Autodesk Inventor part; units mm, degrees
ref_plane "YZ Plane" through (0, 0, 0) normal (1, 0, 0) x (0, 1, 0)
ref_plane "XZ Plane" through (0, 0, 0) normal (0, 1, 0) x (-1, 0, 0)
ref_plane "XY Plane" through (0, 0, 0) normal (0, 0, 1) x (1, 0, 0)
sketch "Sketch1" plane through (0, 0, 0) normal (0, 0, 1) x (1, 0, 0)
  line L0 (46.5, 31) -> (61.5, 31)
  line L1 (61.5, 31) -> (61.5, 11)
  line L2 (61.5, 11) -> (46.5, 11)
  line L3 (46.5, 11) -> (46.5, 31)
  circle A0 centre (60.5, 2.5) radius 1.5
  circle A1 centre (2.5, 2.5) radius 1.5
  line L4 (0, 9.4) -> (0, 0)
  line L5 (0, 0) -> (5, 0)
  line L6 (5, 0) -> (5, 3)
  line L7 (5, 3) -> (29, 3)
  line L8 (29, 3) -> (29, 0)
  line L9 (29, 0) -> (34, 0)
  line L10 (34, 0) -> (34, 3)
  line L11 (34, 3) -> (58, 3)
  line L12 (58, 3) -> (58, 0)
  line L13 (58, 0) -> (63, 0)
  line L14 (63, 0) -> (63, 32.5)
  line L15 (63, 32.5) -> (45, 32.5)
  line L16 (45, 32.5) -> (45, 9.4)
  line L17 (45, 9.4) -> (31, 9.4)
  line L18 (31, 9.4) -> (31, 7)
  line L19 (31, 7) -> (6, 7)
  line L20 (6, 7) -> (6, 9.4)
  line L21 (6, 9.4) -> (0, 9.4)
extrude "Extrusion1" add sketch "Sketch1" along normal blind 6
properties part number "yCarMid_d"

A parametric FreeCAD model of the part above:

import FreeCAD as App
import Part
import Sketcher

V = App.Vector


def add_polygon(sketch, points):
    """Adds a closed chain of lines whose ends are joined by coincident constraints."""
    first, n = sketch.GeometryCount, len(points)
    for a, b in zip(points, points[1:] + points[:1]):
        sketch.addGeometry(Part.LineSegment(App.Vector(*a, 0), App.Vector(*b, 0)), False)
    for i in range(n):
        sketch.addConstraint(Sketcher.Constraint("Coincident", first + i, 2, first + (i + 1) % n, 1))

doc = App.newDocument("Part")
body = doc.addObject("PartDesign::Body", "Body")

sketch1 = body.newObject("Sketcher::SketchObject", "Sketch")
sketch1.AttachmentSupport = (doc.getObject("XY_Plane"), [""])
sketch1.MapMode = "FlatFace"
add_polygon(sketch1, [(6, 9.4), (0, 9.4), (0, 0), (5, 0), (5, 3), (29, 3), (29, 0), (34, 0), (34, 3), (58, 3), (58, 0), (63, 0), (63, 32.5), (45, 32.5), (45, 9.4), (31, 9.4), (31, 7), (6, 7)])
sketch1.addGeometry(Part.Circle(V(2.5, 2.5, 0), V(0, 0, 1), 1.5), False)
sketch1.addGeometry(Part.Circle(V(60.5, 2.5, 0), V(0, 0, 1), 1.5), False)
add_polygon(sketch1, [(46.5, 11), (46.5, 31), (61.5, 31), (61.5, 11)])
sketch1.addConstraint([
    Sketcher.Constraint("Horizontal", 0),
    Sketcher.Constraint("Vertical", 1),
    Sketcher.Constraint("Horizontal", 2),
    Sketcher.Constraint("Vertical", 3),
    Sketcher.Constraint("Horizontal", 4),
    Sketcher.Constraint("Vertical", 5),
    Sketcher.Constraint("Horizontal", 6),
    Sketcher.Constraint("Vertical", 7),
    Sketcher.Constraint("Horizontal", 8),
    Sketcher.Constraint("Vertical", 9),
    Sketcher.Constraint("Horizontal", 10),
    Sketcher.Constraint("Vertical", 11),
    Sketcher.Constraint("Horizontal", 12),
    Sketcher.Constraint("Vertical", 13),
    Sketcher.Constraint("Horizontal", 14),
    Sketcher.Constraint("Vertical", 15),
    Sketcher.Constraint("Horizontal", 16),
    Sketcher.Constraint("Vertical", 17),
    Sketcher.Constraint("Vertical", 20),
    Sketcher.Constraint("Horizontal", 21),
    Sketcher.Constraint("Vertical", 22),
    Sketcher.Constraint("Horizontal", 23),
    Sketcher.Constraint("Coincident", 1, 2, -1, 1),
    Sketcher.Constraint("Equal", 18, 19),
    Sketcher.Constraint("PointOnObject", 5, 2, -1),
    Sketcher.Constraint("PointOnObject", 9, 2, -1),
    Sketcher.Constraint("Horizontal", 18, 3, 19, 3),
    Sketcher.Constraint("Horizontal", 4, 2, 7, 2),
    Sketcher.Constraint("Horizontal", 0, 2, 13, 2),
    Sketcher.Constraint("Equal", 2, 6),
    Sketcher.Constraint("Equal", 4, 8),
    Sketcher.Constraint("Equal", 6, 10),
    Sketcher.Constraint("Diameter", 18, 3.0),
    Sketcher.Constraint("DistanceX", 0, 2, 0, 1, 6.0),
    Sketcher.Constraint("DistanceX", 2, 1, 2, 2, 5.0),
    Sketcher.Constraint("DistanceX", 4, 1, 4, 2, 24.0),
    Sketcher.Constraint("DistanceX", 12, 2, 12, 1, 18.0),
    Sketcher.Constraint("DistanceX", 14, 2, 14, 1, 14.0),
    Sketcher.Constraint("DistanceX", 21, 1, 21, 2, 15.0),
    Sketcher.Constraint("DistanceY", 3, 1, 3, 2, 3.0),
    Sketcher.Constraint("DistanceY", 20, 1, 20, 2, 20.0),
    Sketcher.Constraint("DistanceY", 1, 2, 1, 1, 9.4),
    Sketcher.Constraint("DistanceY", 11, 1, 11, 2, 32.5),
    Sketcher.Constraint("DistanceY", 15, 2, 15, 1, 2.4),
    Sketcher.Constraint("DistanceY", -1, 1, 20, 2, 31.0),
    Sketcher.Constraint("DistanceX", 18, 3, 19, 3, 58.0),
    Sketcher.Constraint("DistanceY", 19, 3, 11, 2, 30.0),
    Sketcher.Constraint("DistanceX", 19, 3, 22, 2, 1.0),
    Sketcher.Constraint("DistanceX", -1, 1, 18, 3, 2.5),
])
pad1 = body.newObject("PartDesign::Pad", "Pad")
pad1.Profile = sketch1
pad1.Length = 6

doc.recompute()
